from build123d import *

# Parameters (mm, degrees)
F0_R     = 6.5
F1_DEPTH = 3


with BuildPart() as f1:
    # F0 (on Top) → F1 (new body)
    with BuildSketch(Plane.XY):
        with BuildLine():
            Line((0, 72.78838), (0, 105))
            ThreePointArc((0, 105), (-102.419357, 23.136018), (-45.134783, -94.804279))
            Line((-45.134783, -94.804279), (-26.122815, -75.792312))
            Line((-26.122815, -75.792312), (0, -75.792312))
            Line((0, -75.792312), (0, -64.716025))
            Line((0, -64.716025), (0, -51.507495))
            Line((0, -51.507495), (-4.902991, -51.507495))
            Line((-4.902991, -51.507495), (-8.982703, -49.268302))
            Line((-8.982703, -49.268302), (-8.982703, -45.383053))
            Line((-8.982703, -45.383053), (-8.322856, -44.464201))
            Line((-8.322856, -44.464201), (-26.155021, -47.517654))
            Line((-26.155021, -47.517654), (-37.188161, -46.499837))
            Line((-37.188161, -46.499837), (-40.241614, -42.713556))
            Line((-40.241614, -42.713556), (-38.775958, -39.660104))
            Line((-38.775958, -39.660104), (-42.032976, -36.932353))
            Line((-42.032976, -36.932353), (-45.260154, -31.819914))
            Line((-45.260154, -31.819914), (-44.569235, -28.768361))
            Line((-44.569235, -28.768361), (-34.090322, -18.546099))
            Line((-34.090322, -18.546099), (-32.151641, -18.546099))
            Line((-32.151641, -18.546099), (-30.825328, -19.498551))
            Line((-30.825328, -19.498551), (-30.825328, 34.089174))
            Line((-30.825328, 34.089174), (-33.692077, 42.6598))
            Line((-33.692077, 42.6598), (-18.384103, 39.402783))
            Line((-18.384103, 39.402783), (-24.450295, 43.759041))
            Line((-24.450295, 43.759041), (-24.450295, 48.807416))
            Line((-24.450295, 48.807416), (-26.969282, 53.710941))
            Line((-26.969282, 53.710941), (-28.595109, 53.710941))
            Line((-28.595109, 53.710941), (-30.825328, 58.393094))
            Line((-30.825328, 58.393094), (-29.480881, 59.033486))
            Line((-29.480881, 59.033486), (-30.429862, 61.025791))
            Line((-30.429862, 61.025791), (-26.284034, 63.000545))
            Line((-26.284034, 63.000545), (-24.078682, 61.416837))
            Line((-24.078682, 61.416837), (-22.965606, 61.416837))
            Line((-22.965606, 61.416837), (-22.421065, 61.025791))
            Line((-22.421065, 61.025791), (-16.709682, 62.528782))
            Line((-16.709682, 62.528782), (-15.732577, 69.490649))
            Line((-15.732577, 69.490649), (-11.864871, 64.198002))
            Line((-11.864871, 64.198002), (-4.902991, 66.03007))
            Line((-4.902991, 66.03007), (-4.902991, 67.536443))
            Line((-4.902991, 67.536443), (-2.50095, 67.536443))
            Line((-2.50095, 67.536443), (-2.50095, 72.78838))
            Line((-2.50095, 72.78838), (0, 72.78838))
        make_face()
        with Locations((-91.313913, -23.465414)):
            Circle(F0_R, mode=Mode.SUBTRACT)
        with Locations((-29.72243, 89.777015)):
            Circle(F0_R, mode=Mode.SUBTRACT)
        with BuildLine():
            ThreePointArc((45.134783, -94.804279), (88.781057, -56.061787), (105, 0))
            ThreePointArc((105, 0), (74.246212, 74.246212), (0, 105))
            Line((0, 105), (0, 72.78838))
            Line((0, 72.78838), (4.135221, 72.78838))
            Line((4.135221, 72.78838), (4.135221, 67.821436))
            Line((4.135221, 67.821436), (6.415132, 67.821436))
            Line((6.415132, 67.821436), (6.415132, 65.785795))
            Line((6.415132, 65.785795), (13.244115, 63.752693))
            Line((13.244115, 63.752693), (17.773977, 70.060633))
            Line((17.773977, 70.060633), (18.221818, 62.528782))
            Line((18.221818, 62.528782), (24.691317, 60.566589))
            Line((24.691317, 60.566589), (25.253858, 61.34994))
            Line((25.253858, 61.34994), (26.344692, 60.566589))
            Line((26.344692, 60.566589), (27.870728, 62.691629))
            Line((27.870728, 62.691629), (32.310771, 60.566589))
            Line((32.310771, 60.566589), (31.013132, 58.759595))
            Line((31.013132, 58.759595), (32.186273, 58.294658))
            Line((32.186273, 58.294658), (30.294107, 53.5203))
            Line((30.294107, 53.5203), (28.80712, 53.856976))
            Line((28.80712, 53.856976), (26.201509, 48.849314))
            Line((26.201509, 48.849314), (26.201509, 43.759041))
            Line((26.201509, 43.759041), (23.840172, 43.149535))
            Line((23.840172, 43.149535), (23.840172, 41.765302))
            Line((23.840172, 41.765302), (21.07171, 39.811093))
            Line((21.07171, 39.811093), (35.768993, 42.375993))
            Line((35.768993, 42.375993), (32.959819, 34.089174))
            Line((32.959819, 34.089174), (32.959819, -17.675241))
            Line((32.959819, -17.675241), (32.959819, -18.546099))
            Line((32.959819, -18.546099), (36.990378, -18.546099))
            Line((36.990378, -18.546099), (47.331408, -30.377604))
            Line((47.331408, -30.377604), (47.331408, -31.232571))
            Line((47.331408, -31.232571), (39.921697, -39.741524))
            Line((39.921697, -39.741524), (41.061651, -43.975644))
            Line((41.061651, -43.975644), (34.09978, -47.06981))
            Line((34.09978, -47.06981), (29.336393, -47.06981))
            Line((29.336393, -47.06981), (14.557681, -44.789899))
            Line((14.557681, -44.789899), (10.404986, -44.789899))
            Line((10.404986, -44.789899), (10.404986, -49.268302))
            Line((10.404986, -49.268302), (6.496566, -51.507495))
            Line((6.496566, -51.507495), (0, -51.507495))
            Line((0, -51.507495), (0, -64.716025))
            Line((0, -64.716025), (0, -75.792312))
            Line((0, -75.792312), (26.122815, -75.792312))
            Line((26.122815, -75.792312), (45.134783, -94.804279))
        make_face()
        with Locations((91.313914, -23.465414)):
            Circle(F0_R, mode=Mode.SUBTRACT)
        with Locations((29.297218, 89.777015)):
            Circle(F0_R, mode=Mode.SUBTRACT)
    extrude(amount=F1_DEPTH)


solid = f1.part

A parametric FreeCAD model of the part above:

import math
import FreeCAD as App
import Part
import Sketcher

V = App.Vector


def add_polygon(sketch, points):
    """Adds a closed chain of lines whose ends are joined by coincident constraints."""
    first, n = sketch.GeometryCount, len(points)
    for a, b in zip(points, points[1:] + points[:1]):
        sketch.addGeometry(Part.LineSegment(App.Vector(*a, 0), App.Vector(*b, 0)), False)
    for i in range(n):
        sketch.addConstraint(Sketcher.Constraint("Coincident", first + i, 2, first + (i + 1) % n, 1))

doc = App.newDocument("Part")
params = doc.addObject("Spreadsheet::Sheet", "Params")
for row, (alias, value) in enumerate([
    ("sketch1_diameter", "13 mm"),
    ("sketch1_diameter2", "13 mm"),
    ("sketch1_diameter3", "13 mm"),
    ("sketch1_diameter4", "13 mm"),
    ("sketch1_radius", "105 mm"),
    ("pad1_length", "3 mm"),
], start=1):
    params.set(f"A{row}", alias)
    params.set(f"B{row}", "=" + value)
    params.setAlias(f"B{row}", alias)

body = doc.addObject("PartDesign::Body", "Body")

sketch1 = body.newObject("Sketcher::SketchObject", "Sketch")
sketch1.AttachmentSupport = (doc.getObject("XY_Plane"), [""])
sketch1.MapMode = "FlatFace"
sketch1.addGeometry(Part.ArcOfCircle(Part.Circle(V(0, 0, 0), V(0, 0, 1), 105), math.radians(90), math.radians(244.541637)), False)
sketch1.addGeometry(Part.LineSegment(V(-45.134783, -94.804279, 0), V(-26.122815, -75.792312, 0)), False)
sketch1.addGeometry(Part.LineSegment(V(-26.122815, -75.792312, 0), V(26.122815, -75.792312, 0)), False)
sketch1.addGeometry(Part.LineSegment(V(26.122815, -75.792312, 0), V(45.134783, -94.804279, 0)), False)
sketch1.addGeometry(Part.ArcOfCircle(Part.Circle(V(0.000002, -0.000001, 0), V(0, 0, 1), 104.999998), math.radians(-64.541637), math.radians(0.000001)), False)
sketch1.addGeometry(Part.ArcOfCircle(Part.Circle(V(0, 0, 0), V(0, 0, 1), 105), math.radians(0), math.radians(90)), False)
sketch1.addGeometry(Part.Circle(V(-91.313913, -23.465414, 0), V(0, 0, 1), 6.5), False)
sketch1.addGeometry(Part.Circle(V(91.313914, -23.465414, 0), V(0, 0, 1), 6.5), False)
add_polygon(sketch1, [(-2.50095, 72.78838), (4.135221, 72.78838), (4.135221, 67.821436), (6.415132, 67.821436), (6.415132, 65.785795), (13.244115, 63.752693), (17.773977, 70.060633), (18.221818, 62.528782), (24.691317, 60.566589), (25.253858, 61.34994), (26.344692, 60.566589), (27.870728, 62.691629), (32.310771, 60.566589), (31.013132, 58.759595), (32.186273, 58.294658), (30.294107, 53.5203), (28.80712, 53.856976), (26.201509, 48.849314), (26.201509, 43.759041), (23.840172, 43.149535), (23.840172, 41.765302), (21.07171, 39.811093), (35.768993, 42.375993), (32.959819, 34.089174), (32.959819, -18.546099), (36.990378, -18.546099), (47.331408, -30.377604), (47.331408, -31.232571), (39.921697, -39.741524), (41.061651, -43.975644), (34.09978, -47.06981), (29.336393, -47.06981), (14.557681, -44.789899), (10.404986, -44.789899), (10.404986, -49.268302), (6.496566, -51.507495), (-4.902991, -51.507495), (-8.982703, -49.268302), (-8.982703, -45.383053), (-8.322856, -44.464201), (-26.155021, -47.517654), (-37.188161, -46.499837), (-40.241614, -42.713556), (-38.775958, -39.660104), (-42.032976, -36.932353), (-45.260154, -31.819914), (-44.569235, -28.768361), (-34.090322, -18.546099), (-32.151641, -18.546099), (-30.825328, -19.498551), (-30.825328, 34.089174), (-33.692077, 42.6598), (-18.384103, 39.402783), (-24.450295, 43.759041), (-24.450295, 48.807416), (-26.969282, 53.710941), (-28.595109, 53.710941), (-30.825328, 58.393094), (-29.480881, 59.033486), (-30.429862, 61.025791), (-26.284034, 63.000545), (-24.078682, 61.416837), (-22.965606, 61.416837), (-22.421065, 61.025791), (-16.709682, 62.528782), (-15.732577, 69.490649), (-11.864871, 64.198002), (-4.902991, 66.03007), (-4.902991, 67.536443), (-2.50095, 67.536443)])
sketch1.addGeometry(Part.Circle(V(-29.72243, 89.777015, 0), V(0, 0, 1), 6.5), False)
sketch1.addGeometry(Part.Circle(V(29.297218, 89.777015, 0), V(0, 0, 1), 6.5), False)
sketch1.addConstraint(Sketcher.Constraint("Coincident", 0, 2, 1, 1))
sketch1.addConstraint(Sketcher.Constraint("Coincident", 1, 2, 2, 1))
sketch1.addConstraint(Sketcher.Constraint("Coincident", 2, 2, 3, 1))
sketch1.addConstraint(Sketcher.Constraint("Coincident", 3, 2, 4, 1))
sketch1.addConstraint(Sketcher.Constraint("Coincident", 4, 2, 5, 1))
sketch1.addConstraint(Sketcher.Constraint("Coincident", 5, 2, 0, 1))
sketch1.addConstraint(Sketcher.Constraint("Horizontal", 2))
sketch1.addConstraint(Sketcher.Constraint("Horizontal", 8))
sketch1.addConstraint(Sketcher.Constraint("Vertical", 9))
sketch1.addConstraint(Sketcher.Constraint("Horizontal", 10))
sketch1.addConstraint(Sketcher.Constraint("Vertical", 11))
sketch1.addConstraint(Sketcher.Constraint("Vertical", 25))
sketch1.addConstraint(Sketcher.Constraint("Vertical", 27))
sketch1.addConstraint(Sketcher.Constraint("Vertical", 31))
sketch1.addConstraint(Sketcher.Constraint("Horizontal", 32))
sketch1.addConstraint(Sketcher.Constraint("Vertical", 34))
sketch1.addConstraint(Sketcher.Constraint("Horizontal", 38))
sketch1.addConstraint(Sketcher.Constraint("Horizontal", 40))
sketch1.addConstraint(Sketcher.Constraint("Vertical", 41))
sketch1.addConstraint(Sketcher.Constraint("Horizontal", 43))
sketch1.addConstraint(Sketcher.Constraint("Vertical", 45))
sketch1.addConstraint(Sketcher.Constraint("Horizontal", 55))
sketch1.addConstraint(Sketcher.Constraint("Vertical", 57))
sketch1.addConstraint(Sketcher.Constraint("Vertical", 61))
sketch1.addConstraint(Sketcher.Constraint("Horizontal", 63))
sketch1.addConstraint(Sketcher.Constraint("Horizontal", 69))
sketch1.addConstraint(Sketcher.Constraint("Vertical", 75))
sketch1.addConstraint(Sketcher.Constraint("Horizontal", 76))
sketch1.addConstraint(Sketcher.Constraint("Vertical", 77))
sketch1.addConstraint(Sketcher.Constraint("Coincident", 0, 3, -1, 1))
sketch1.addConstraint(Sketcher.Constraint("Coincident", 4, 3, -1, 1))
sketch1.addConstraint(Sketcher.Constraint("Coincident", 5, 3, -1, 1))
sketch1.addConstraint(Sketcher.Constraint("PointOnObject", 4, 2, -1))
sketch1.addConstraint(Sketcher.Constraint("PointOnObject", 5, 2, -2))
sketch1.addConstraint(Sketcher.Constraint("Diameter", 6, 13.0))
sketch1.addConstraint(Sketcher.Constraint("Diameter", 7, 13.0))
sketch1.addConstraint(Sketcher.Constraint("Diameter", 78, 13.0))
sketch1.addConstraint(Sketcher.Constraint("Diameter", 79, 13.0))
sketch1.addConstraint(Sketcher.Constraint("Radius", 0, 105.0))
sketch1.addConstraint(Sketcher.Constraint("Distance", 35, 11.283))
sketch1.addConstraint(Sketcher.Constraint("Distance", 52, 6.045801))
sketch1.addConstraint(Sketcher.Constraint("Distance", 62, 5.512699))
sketch1.addConstraint(Sketcher.Constraint("Distance", 72, 7.030101))
sketch1.addConstraint(Sketcher.Constraint("DistanceX", 2, 1, 2, 2, 52.24563))
sketch1.addConstraint(Sketcher.Constraint("DistanceX", 8, 1, 8, 2, 6.636171))
sketch1.addConstraint(Sketcher.Constraint("DistanceX", 10, 1, 10, 2, 2.279911))
sketch1.addConstraint(Sketcher.Constraint("DistanceX", 32, 1, 32, 2, 4.030559))
sketch1.addConstraint(Sketcher.Constraint("DistanceX", 55, 1, 55, 2, 1.938681))
sketch1.addConstraint(Sketcher.Constraint("DistanceX", 76, 1, 76, 2, 2.402041))
sketch1.addConstraint(Sketcher.Constraint("DistanceY", 11, 2, 11, 1, 2.035641))
sketch1.addConstraint(Sketcher.Constraint("DistanceY", 45, 1, 45, 2, 3.885249))
sketch1.addConstraint(Sketcher.Constraint("DistanceY", -1, 1, 22, 2, 53.5203))
sketch1.addConstraint(Sketcher.Constraint("DistanceY", -1, 1, 27, 2, 41.765302))
sketch1.addConstraint(Sketcher.Constraint("DistanceY", 31, 2, -1, 1, 18.546099))
sketch1.addConstraint(Sketcher.Constraint("DistanceY", 39, 2, -1, 1, 44.789899))
sketch1.addConstraint(Sketcher.Constraint("DistanceY", 41, 2, -1, 1, 49.268302))
sketch1.addConstraint(Sketcher.Constraint("DistanceY", 44, 2, -1, 1, 49.268302))
sketch1.addConstraint(Sketcher.Constraint("DistanceY", 46, 2, -1, 1, 44.464201))
sketch1.addConstraint(Sketcher.Constraint("DistanceY", 54, 2, -1, 1, 18.546099))
sketch1.addConstraint(Sketcher.Constraint("DistanceY", -1, 1, 58, 2, 42.6598))
sketch1.addConstraint(Sketcher.Constraint("Distance", 15, 6.760519))
sketch1.addConstraint(Sketcher.Constraint("Distance", 22, 5.135639))
sketch1.addConstraint(Sketcher.Constraint("Distance", 26, 2.438731))
sketch1.addConstraint(Sketcher.Constraint("Distance", 29, 14.919412))
sketch1.addConstraint(Sketcher.Constraint("Distance", 30, 8.750019))
sketch1.addConstraint(Sketcher.Constraint("Distance", 36, 4.384891))
sketch1.addConstraint(Sketcher.Constraint("Distance", 39, 14.953539))
sketch1.addConstraint(Sketcher.Constraint("Distance", 44, 4.653819))
sketch1.addConstraint(Sketcher.Constraint("Distance", 58, 9.03736))
sketch1.addConstraint(Sketcher.Constraint("Distance", 59, 15.65063))
sketch1.addConstraint(Sketcher.Constraint("Distance", 60, 7.468311))
sketch1.addConstraint(Sketcher.Constraint("Distance", 68, 2.715089))
sketch1.addConstraint(Sketcher.Constraint("DistanceX", 38, 2, 38, 1, 4.763387))
sketch1.addConstraint(Sketcher.Constraint("DistanceX", 40, 2, 40, 1, 4.152695))
sketch1.addConstraint(Sketcher.Constraint("DistanceX", 43, 2, 43, 1, 11.399557))
sketch1.addConstraint(Sketcher.Constraint("DistanceX", 63, 2, 63, 1, 1.625827))
sketch1.addConstraint(Sketcher.Constraint("DistanceX", 69, 1, 69, 2, 1.113076))
sketch1.addConstraint(Sketcher.Constraint("DistanceY", 9, 2, 9, 1, 4.966944))
sketch1.addConstraint(Sketcher.Constraint("DistanceY", 25, 2, 25, 1, 5.090273))
sketch1.addConstraint(Sketcher.Constraint("DistanceY", 27, 2, 27, 1, 1.384233))
sketch1.addConstraint(Sketcher.Constraint("DistanceY", 31, 2, 31, 1, 52.635273))
sketch1.addConstraint(Sketcher.Constraint("DistanceY", 34, 2, 34, 1, 0.854967))
sketch1.addConstraint(Sketcher.Constraint("DistanceY", 57, 1, 57, 2, 53.587725))
sketch1.addConstraint(Sketcher.Constraint("DistanceY", 61, 1, 61, 2, 5.048375))
sketch1.addConstraint(Sketcher.Constraint("DistanceY", 75, 1, 75, 2, 1.506373))
sketch1.addConstraint(Sketcher.Constraint("DistanceY", 77, 1, 77, 2, 5.251937))
sketch1.addConstraint(Sketcher.Constraint("DistanceX", 78, 3, -1, 1, 29.72243))
sketch1.addConstraint(Sketcher.Constraint("DistanceX", -1, 1, 79, 3, 29.297218))
sketch1.addConstraint(Sketcher.Constraint("DistanceY", 0, 2, -1, 1, 94.804279))
sketch1.addConstraint(Sketcher.Constraint("DistanceY", 1, 2, -1, 1, 75.792312))
sketch1.addConstraint(Sketcher.Constraint("DistanceY", 3, 2, -1, 1, 94.804279))
sketch1.addConstraint(Sketcher.Constraint("DistanceX", -1, 1, 8, 2, 4.135221))
sketch1.addConstraint(Sketcher.Constraint("DistanceY", -1, 1, 8, 2, 72.78838))
sketch1.addConstraint(Sketcher.Constraint("DistanceY", -1, 1, 15, 2, 60.566589))
sketch1.addConstraint(Sketcher.Constraint("DistanceX", -1, 1, 16, 2, 25.253858))
sketch1.addConstraint(Sketcher.Constraint("DistanceY", -1, 1, 16, 2, 61.34994))
sketch1.addConstraint(Sketcher.Constraint("DistanceX", -1, 1, 17, 2, 26.344692))
sketch1.addConstraint(Sketcher.Constraint("DistanceY", -1, 1, 17, 2, 60.566589))
sketch1.addConstraint(Sketcher.Constraint("DistanceX", -1, 1, 18, 2, 27.870728))
sketch1.addConstraint(Sketcher.Constraint("DistanceY", -1, 1, 18, 2, 62.691629))
sketch1.addConstraint(Sketcher.Constraint("DistanceX", -1, 1, 19, 2, 32.310771))
sketch1.addConstraint(Sketcher.Constraint("DistanceY", -1, 1, 19, 2, 60.566589))
sketch1.addConstraint(Sketcher.Constraint("DistanceX", -1, 1, 20, 2, 31.013132))
sketch1.addConstraint(Sketcher.Constraint("DistanceX", -1, 1, 23, 2, 28.80712))
sketch1.addConstraint(Sketcher.Constraint("DistanceX", -1, 1, 24, 2, 26.201509))
sketch1.addConstraint(Sketcher.Constraint("DistanceY", -1, 1, 25, 2, 43.759041))
sketch1.addConstraint(Sketcher.Constraint("DistanceX", -1, 1, 28, 2, 21.07171))
sketch1.addConstraint(Sketcher.Constraint("DistanceX", -1, 1, 30, 2, 32.959819))
sketch1.addConstraint(Sketcher.Constraint("DistanceX", -1, 1, 33, 2, 47.331408))
sketch1.addConstraint(Sketcher.Constraint("DistanceY", 34, 2, -1, 1, 31.232571))
sketch1.addConstraint(Sketcher.Constraint("DistanceX", -1, 1, 36, 2, 41.061651))
sketch1.addConstraint(Sketcher.Constraint("DistanceX", -1, 1, 37, 2, 34.09978))
sketch1.addConstraint(Sketcher.Constraint("DistanceY", 37, 2, -1, 1, 47.06981))
sketch1.addConstraint(Sketcher.Constraint("DistanceX", 43, 2, -1, 1, 4.902991))
sketch1.addConstraint(Sketcher.Constraint("DistanceX", 47, 2, -1, 1, 26.155021))
sketch1.addConstraint(Sketcher.Constraint("DistanceX", 48, 2, -1, 1, 37.188161))
sketch1.addConstraint(Sketcher.Constraint("DistanceX", 50, 2, -1, 1, 38.775958))
sketch1.addConstraint(Sketcher.Constraint("DistanceY", 53, 2, -1, 1, 28.768361))
sketch1.addConstraint(Sketcher.Constraint("DistanceX", 55, 2, -1, 1, 32.151641))
sketch1.addConstraint(Sketcher.Constraint("DistanceY", 56, 2, -1, 1, 19.498551))
sketch1.addConstraint(Sketcher.Constraint("DistanceY", -1, 1, 60, 2, 43.759041))
sketch1.addConstraint(Sketcher.Constraint("DistanceX", 62, 2, -1, 1, 26.969282))
sketch1.addConstraint(Sketcher.Constraint("DistanceY", -1, 1, 62, 2, 53.710941))
sketch1.addConstraint(Sketcher.Constraint("DistanceX", 65, 2, -1, 1, 29.480881))
sketch1.addConstraint(Sketcher.Constraint("DistanceX", 66, 2, -1, 1, 30.429862))
sketch1.addConstraint(Sketcher.Constraint("DistanceY", -1, 1, 66, 2, 61.025791))
sketch1.addConstraint(Sketcher.Constraint("DistanceY", -1, 1, 70, 2, 61.025791))
sketch1.addConstraint(Sketcher.Constraint("DistanceY", -1, 1, 72, 2, 69.490649))
sketch1.addConstraint(Sketcher.Constraint("DistanceX", 73, 2, -1, 1, 11.864871))
sketch1.addConstraint(Sketcher.Constraint("Distance", 1, 26.886982))
sketch1.addConstraint(Sketcher.Constraint("Distance", 12, 7.125203))
sketch1.addConstraint(Sketcher.Constraint("Distance", 13, 7.765936))
sketch1.addConstraint(Sketcher.Constraint("Distance", 14, 7.545153))
sketch1.addConstraint(Sketcher.Constraint("Distance", 16, 0.964412))
sketch1.addConstraint(Sketcher.Constraint("Distance", 20, 2.224656))
sketch1.addConstraint(Sketcher.Constraint("Distance", 21, 1.261914))
sketch1.addConstraint(Sketcher.Constraint("Distance", 23, 1.524625))
sketch1.addConstraint(Sketcher.Constraint("Distance", 24, 5.644988))
sketch1.addConstraint(Sketcher.Constraint("Distance", 28, 3.388704))
sketch1.addConstraint(Sketcher.Constraint("Distance", 37, 7.618498))
sketch1.addConstraint(Sketcher.Constraint("Distance", 42, 4.504413))
sketch1.addConstraint(Sketcher.Constraint("Distance", 46, 1.131233))
sketch1.addConstraint(Sketcher.Constraint("Distance", 47, 18.091702))
sketch1.addConstraint(Sketcher.Constraint("Distance", 48, 11.079988))
sketch1.addConstraint(Sketcher.Constraint("Distance", 49, 4.864103))
sketch1.addConstraint(Sketcher.Constraint("Distance", 50, 3.386992))
sketch1.addConstraint(Sketcher.Constraint("Distance", 51, 4.248387))
sketch1.addConstraint(Sketcher.Constraint("Distance", 53, 3.128793))
sketch1.addConstraint(Sketcher.Constraint("Distance", 54, 14.639066))
sketch1.addConstraint(Sketcher.Constraint("Distance", 56, 1.632872))
sketch1.addConstraint(Sketcher.Constraint("Distance", 64, 5.186177))
sketch1.addConstraint(Sketcher.Constraint("Distance", 65, 1.489174))
sketch1.addConstraint(Sketcher.Constraint("Distance", 66, 2.206772))
sketch1.addConstraint(Sketcher.Constraint("Distance", 67, 4.592118))
sketch1.addConstraint(Sketcher.Constraint("Distance", 70, 0.670404))
sketch1.addConstraint(Sketcher.Constraint("Distance", 71, 5.905834))
sketch1.addConstraint(Sketcher.Constraint("Distance", 73, 6.555247))
sketch1.addConstraint(Sketcher.Constraint("Distance", 74, 7.198906))
sketch1.addConstraint(Sketcher.Constraint("DistanceX", 6, 3, -1, 1, 91.313913))
sketch1.addConstraint(Sketcher.Constraint("DistanceY", 6, 3, -1, 1, 23.465414))
sketch1.addConstraint(Sketcher.Constraint("DistanceX", -1, 1, 7, 3, 91.313914))
sketch1.addConstraint(Sketcher.Constraint("DistanceY", 7, 3, -1, 1, 23.465414))
sketch1.addConstraint(Sketcher.Constraint("DistanceY", -1, 1, 78, 3, 89.777015))
sketch1.addConstraint(Sketcher.Constraint("DistanceY", -1, 1, 79, 3, 89.777015))
sketch1.addConstraint(Sketcher.Constraint("DistanceX", -1, 1, 12, 2, 13.244115))
sketch1.addConstraint(Sketcher.Constraint("DistanceX", -1, 1, 13, 2, 17.773977))
sketch1.addConstraint(Sketcher.Constraint("DistanceX", 49, 2, -1, 1, 40.241614))
sketch1.addConstraint(Sketcher.Constraint("DistanceX", 51, 2, -1, 1, 42.032976))
sketch1.addConstraint(Sketcher.Constraint("DistanceX", 67, 2, -1, 1, 26.284034))
sketch1.addConstraint(Sketcher.Constraint("DistanceX", 68, 2, -1, 1, 24.078682))
sketch1.setExpression("Constraints[104]", "Params.sketch1_diameter")
sketch1.setExpression("Constraints[105]", "Params.sketch1_diameter2")
sketch1.setExpression("Constraints[106]", "Params.sketch1_diameter3")
sketch1.setExpression("Constraints[107]", "Params.sketch1_diameter4")
sketch1.setExpression("Constraints[108]", "Params.sketch1_radius")
pad1 = body.newObject("PartDesign::Pad", "Pad")
pad1.Profile = sketch1
pad1.setExpression("Length", "Params.pad1_length")

doc.recompute()
